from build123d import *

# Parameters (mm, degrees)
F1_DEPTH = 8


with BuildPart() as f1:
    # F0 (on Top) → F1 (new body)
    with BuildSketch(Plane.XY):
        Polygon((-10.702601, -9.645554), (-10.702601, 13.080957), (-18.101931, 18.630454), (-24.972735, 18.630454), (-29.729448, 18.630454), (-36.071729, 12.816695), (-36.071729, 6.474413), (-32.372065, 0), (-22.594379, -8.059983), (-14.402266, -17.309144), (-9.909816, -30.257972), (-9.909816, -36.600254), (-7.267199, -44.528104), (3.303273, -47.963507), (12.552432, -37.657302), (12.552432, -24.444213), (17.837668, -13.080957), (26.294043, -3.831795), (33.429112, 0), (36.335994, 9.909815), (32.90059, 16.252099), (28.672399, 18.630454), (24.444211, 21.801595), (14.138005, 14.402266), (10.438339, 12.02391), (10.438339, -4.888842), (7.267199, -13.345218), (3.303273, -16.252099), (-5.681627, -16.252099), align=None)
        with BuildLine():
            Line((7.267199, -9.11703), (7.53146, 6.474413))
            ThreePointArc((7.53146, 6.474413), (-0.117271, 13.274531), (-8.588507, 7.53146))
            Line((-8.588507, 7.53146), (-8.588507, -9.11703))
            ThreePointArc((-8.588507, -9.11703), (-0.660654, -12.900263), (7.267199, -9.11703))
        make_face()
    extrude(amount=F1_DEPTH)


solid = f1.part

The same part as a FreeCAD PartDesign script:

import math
import FreeCAD as App
import Part
import Sketcher
Q = App.Units.Quantity

doc = App.newDocument("Part")
params = doc.addObject("Spreadsheet::Sheet", "Params")
for row, (alias, value) in enumerate([
    ("pad1_length", "8 mm"),
], start=1):
    params.set(f"A{row}", alias)
    params.set(f"B{row}", "=" + value)
    params.setAlias(f"B{row}", alias)

body = doc.addObject("PartDesign::Body", "Body")
body.AllowCompound = True

sketch1 = body.newObject("Sketcher::SketchObject", "Sketch")
sketch1.AttachmentSupport = (doc.getObject("XY_Plane"), [""])
sketch1.MapMode = "FlatFace"
sketch1.addGeometry([
    Part.LineSegment(App.Vector(-10.7, -9.6, 0), App.Vector(-10.7, 13.1, 0)),
    Part.LineSegment(App.Vector(-10.7, 13.1, 0), App.Vector(-18.1, 18.6, 0)),
    Part.LineSegment(App.Vector(-18.1, 18.6, 0), App.Vector(-29.7, 18.6, 0)),
    Part.LineSegment(App.Vector(-29.7, 18.6, 0), App.Vector(-36.1, 12.8, 0)),
    Part.LineSegment(App.Vector(-36.1, 12.8, 0), App.Vector(-36.1, 6.5, 0)),
    Part.LineSegment(App.Vector(-36.1, 6.5, 0), App.Vector(-32.4, 0, 0)),
    Part.LineSegment(App.Vector(-32.4, 0, 0), App.Vector(-22.6, -8.1, 0)),
    Part.LineSegment(App.Vector(-22.6, -8.1, 0), App.Vector(-14.4, -17.3, 0)),
    Part.LineSegment(App.Vector(-14.4, -17.3, 0), App.Vector(-9.9, -30.3, 0)),
    Part.LineSegment(App.Vector(-9.9, -30.3, 0), App.Vector(-9.9, -36.6, 0)),
    Part.LineSegment(App.Vector(-9.9, -36.6, 0), App.Vector(-7.3, -44.5, 0)),
    Part.LineSegment(App.Vector(-7.3, -44.5, 0), App.Vector(3.3, -48, 0)),
    Part.LineSegment(App.Vector(3.3, -48, 0), App.Vector(12.6, -37.7, 0)),
    Part.LineSegment(App.Vector(12.6, -37.7, 0), App.Vector(12.6, -24.4, 0)),
    Part.LineSegment(App.Vector(12.6, -24.4, 0), App.Vector(17.8, -13.1, 0)),
    Part.LineSegment(App.Vector(17.8, -13.1, 0), App.Vector(26.3, -3.8, 0)),
    Part.LineSegment(App.Vector(26.3, -3.8, 0), App.Vector(33.4, 0, 0)),
    Part.LineSegment(App.Vector(33.4, 0, 0), App.Vector(36.3, 9.9, 0)),
    Part.LineSegment(App.Vector(36.3, 9.9, 0), App.Vector(32.9, 16.3, 0)),
    Part.LineSegment(App.Vector(32.9, 16.3, 0), App.Vector(28.7, 18.6, 0)),
    Part.LineSegment(App.Vector(28.7, 18.6, 0), App.Vector(24.4, 21.8, 0)),
    Part.LineSegment(App.Vector(24.4, 21.8, 0), App.Vector(14.1, 14.4, 0)),
    Part.LineSegment(App.Vector(14.1, 14.4, 0), App.Vector(10.4, 12, 0)),
    Part.LineSegment(App.Vector(10.4, 12, 0), App.Vector(10.4, -4.9, 0)),
    Part.LineSegment(App.Vector(10.4, -4.9, 0), App.Vector(7.3, -13.3, 0)),
    Part.LineSegment(App.Vector(7.3, -13.3, 0), App.Vector(3.3, -16.3, 0)),
    Part.LineSegment(App.Vector(3.3, -16.3, 0), App.Vector(-5.7, -16.3, 0)),
    Part.LineSegment(App.Vector(-5.7, -16.3, 0), App.Vector(-10.7, -9.6, 0)),
    Part.LineSegment(App.Vector(7.3, -9.1, 0), App.Vector(7.5, 6.5, 0)),
    Part.ArcOfCircle(Part.Circle(App.Vector(-0.7, 5, 0), App.Vector(0, 0, 1), 8.3), math.radians(10), math.radians(162)),
    Part.LineSegment(App.Vector(-8.6, 7.5, 0), App.Vector(-8.6, -9.1, 0)),
    Part.ArcOfCircle(Part.Circle(App.Vector(-0.7, -2.7, 0), App.Vector(0, 0, 1), 10.2), math.radians(-141), math.radians(-39)),
], False)
sketch1.addConstraint([
    Sketcher.Constraint("Coincident", 0, 2, 1, 1),
    Sketcher.Constraint("Coincident", 1, 2, 2, 1),
    Sketcher.Constraint("Coincident", 2, 2, 3, 1),
    Sketcher.Constraint("Coincident", 3, 2, 4, 1),
    Sketcher.Constraint("Coincident", 4, 2, 5, 1),
    Sketcher.Constraint("Coincident", 5, 2, 6, 1),
    Sketcher.Constraint("Coincident", 6, 2, 7, 1),
    Sketcher.Constraint("Coincident", 7, 2, 8, 1),
    Sketcher.Constraint("Coincident", 8, 2, 9, 1),
    Sketcher.Constraint("Coincident", 9, 2, 10, 1),
    Sketcher.Constraint("Coincident", 10, 2, 11, 1),
    Sketcher.Constraint("Coincident", 11, 2, 12, 1),
    Sketcher.Constraint("Coincident", 12, 2, 13, 1),
    Sketcher.Constraint("Coincident", 13, 2, 14, 1),
    Sketcher.Constraint("Coincident", 14, 2, 15, 1),
    Sketcher.Constraint("Coincident", 15, 2, 16, 1),
    Sketcher.Constraint("Coincident", 16, 2, 17, 1),
    Sketcher.Constraint("Coincident", 17, 2, 18, 1),
    Sketcher.Constraint("Coincident", 18, 2, 19, 1),
    Sketcher.Constraint("Coincident", 19, 2, 20, 1),
    Sketcher.Constraint("Coincident", 20, 2, 21, 1),
    Sketcher.Constraint("Coincident", 21, 2, 22, 1),
    Sketcher.Constraint("Coincident", 22, 2, 23, 1),
    Sketcher.Constraint("Coincident", 23, 2, 24, 1),
    Sketcher.Constraint("Coincident", 24, 2, 25, 1),
    Sketcher.Constraint("Coincident", 25, 2, 26, 1),
    Sketcher.Constraint("Coincident", 26, 2, 27, 1),
    Sketcher.Constraint("Coincident", 27, 2, 0, 1),
    Sketcher.Constraint("Coincident", 28, 2, 29, 1),
    Sketcher.Constraint("Coincident", 29, 2, 30, 1),
    Sketcher.Constraint("Coincident", 30, 2, 31, 1),
    Sketcher.Constraint("Coincident", 31, 2, 28, 1),
    Sketcher.Constraint("Vertical", 0),
    Sketcher.Constraint("Horizontal", 2),
    Sketcher.Constraint("Vertical", 4),
    Sketcher.Constraint("Vertical", 9),
    Sketcher.Constraint("Vertical", 13),
    Sketcher.Constraint("Vertical", 23),
    Sketcher.Constraint("Horizontal", 26),
    Sketcher.Constraint("Vertical", 30),
    Sketcher.Constraint("PointOnObject", 5, 2, -1),
    Sketcher.Constraint("PointOnObject", 16, 2, -1),
    Sketcher.Constraint("Parallel", 1, 20),
    Sketcher.Constraint("Horizontal", 2, 2, 19, 2),
    Sketcher.Constraint("Horizontal", 4, 2, 28, 2),
    Sketcher.Constraint("Horizontal", 30, 2, 31, 2),
    Sketcher.Constraint("Vertical", 11, 2, 25, 2),
    Sketcher.Constraint("Vertical", 24, 2, 31, 2),
    Sketcher.Constraint("Equal", 4, 9),
    Sketcher.Constraint("Equal", 14, 15),
    Sketcher.Constraint("DistanceX", 26, 2, 26, 1, Q("8.9849 mm")),
    Sketcher.Constraint("Radius", 29, Q("8.332827 mm")),
    Sketcher.Constraint("Radius", 31, Q("10.198117 mm")),
    Sketcher.Constraint("DistanceY", 0, 1, 0, 2, Q("22.726511 mm")),
    Sketcher.Constraint("DistanceY", 4, 2, 4, 1, Q("6.342282 mm")),
    Sketcher.Constraint("DistanceY", 13, 1, 13, 2, Q("13.213089 mm")),
    Sketcher.Constraint("DistanceY", 30, 2, 30, 1, Q("16.64849 mm")),
    Sketcher.Constraint("DistanceX", 0, 2, -1, 1, Q("10.702601 mm")),
    Sketcher.Constraint("DistanceX", 10, 2, -1, 1, Q("7.267199 mm")),
    Sketcher.Constraint("DistanceY", -1, 1, 18, 2, Q("16.252099 mm")),
    Sketcher.Constraint("DistanceX", -1, 1, 19, 2, Q("28.672399 mm")),
    Sketcher.Constraint("DistanceX", -1, 1, 24, 2, Q("7.267199 mm")),
    Sketcher.Constraint("DistanceY", 25, 2, -1, 1, Q("16.252099 mm")),
    Sketcher.Constraint("DistanceY", 31, 3, 1, 2, Q("21.3326 mm")),
    Sketcher.Constraint("DistanceX", 5, 2, 7, 2, Q("17.969799 mm")),
    Sketcher.Constraint("DistanceY", 7, 2, 0, 2, Q("30.390101 mm")),
    Sketcher.Constraint("DistanceX", 8, 2, 29, 3, Q("9.247301 mm")),
    Sketcher.Constraint("DistanceY", 10, 2, 12, 2, Q("6.870802 mm")),
    Sketcher.Constraint("DistanceX", 7, 2, 12, 2, Q("26.954698 mm")),
    Sketcher.Constraint("DistanceX", 20, 2, 16, 2, Q("8.984901 mm")),
    Sketcher.Constraint("DistanceY", 29, 3, 29, 2, Q("2.571898 mm")),
    Sketcher.Constraint("Distance", 3, Q("8.603739 mm")),
    Sketcher.Constraint("Distance", 14, Q("12.532251 mm")),
    Sketcher.Constraint("Distance", 16, Q("8.09888 mm")),
    Sketcher.Constraint("Distance", 17, Q("10.327362 mm")),
    Sketcher.Constraint("Distance", 27, Q("8.297989 mm")),
    Sketcher.Constraint("DistanceX", 2, 2, 2, 1, Q("11.627517 mm")),
    Sketcher.Constraint("DistanceY", 23, 2, 23, 1, Q("16.912752 mm")),
    Sketcher.Constraint("DistanceY", -1, 1, 29, 3, Q("4.959562 mm")),
    Sketcher.Constraint("DistanceX", 1, 2, -1, 1, Q("18.101931 mm")),
    Sketcher.Constraint("DistanceX", 3, 2, -1, 1, Q("36.071729 mm")),
    Sketcher.Constraint("DistanceX", 6, 2, -1, 1, Q("22.594379 mm")),
    Sketcher.Constraint("DistanceY", 8, 2, -1, 1, Q("30.257972 mm")),
    Sketcher.Constraint("DistanceX", -1, 1, 14, 2, Q("17.837668 mm")),
    Sketcher.Constraint("DistanceX", -1, 1, 18, 2, Q("32.90059 mm")),
    Sketcher.Constraint("DistanceX", -1, 1, 20, 2, Q("24.444211 mm")),
    Sketcher.Constraint("DistanceX", -1, 1, 22, 2, Q("10.438339 mm")),
    Sketcher.Constraint("DistanceY", -1, 1, 22, 2, Q("12.02391 mm")),
    Sketcher.Constraint("DistanceX", -1, 1, 28, 2, Q("7.53146 mm")),
    Sketcher.Constraint("DistanceY", 6, 2, 0, 2, Q("21.14094 mm")),
    Sketcher.Constraint("DistanceX", 7, 2, 29, 3, Q("13.739751 mm")),
    Sketcher.Constraint("DistanceY", 8, 2, 6, 2, Q("22.197989 mm")),
    Sketcher.Constraint("DistanceY", 10, 2, 9, 2, Q("7.92785 mm")),
    Sketcher.Constraint("DistanceY", 11, 2, 31, 3, Q("45.261361 mm")),
    Sketcher.Constraint("DistanceX", 16, 2, 17, 2, Q("2.906882 mm")),
    Sketcher.Constraint("DistanceY", 21, 2, 20, 2, Q("7.399329 mm")),
    Sketcher.Constraint("DistanceX", 29, 3, 21, 2, Q("14.80052 mm")),
    Sketcher.Constraint("DistanceY", 24, 2, 14, 2, Q("0.264261 mm")),
])
pad1 = body.newObject("PartDesign::Pad", "Pad")
pad1.Profile = sketch1
pad1.setExpression("Length", "Params.pad1_length")

doc.recompute()
